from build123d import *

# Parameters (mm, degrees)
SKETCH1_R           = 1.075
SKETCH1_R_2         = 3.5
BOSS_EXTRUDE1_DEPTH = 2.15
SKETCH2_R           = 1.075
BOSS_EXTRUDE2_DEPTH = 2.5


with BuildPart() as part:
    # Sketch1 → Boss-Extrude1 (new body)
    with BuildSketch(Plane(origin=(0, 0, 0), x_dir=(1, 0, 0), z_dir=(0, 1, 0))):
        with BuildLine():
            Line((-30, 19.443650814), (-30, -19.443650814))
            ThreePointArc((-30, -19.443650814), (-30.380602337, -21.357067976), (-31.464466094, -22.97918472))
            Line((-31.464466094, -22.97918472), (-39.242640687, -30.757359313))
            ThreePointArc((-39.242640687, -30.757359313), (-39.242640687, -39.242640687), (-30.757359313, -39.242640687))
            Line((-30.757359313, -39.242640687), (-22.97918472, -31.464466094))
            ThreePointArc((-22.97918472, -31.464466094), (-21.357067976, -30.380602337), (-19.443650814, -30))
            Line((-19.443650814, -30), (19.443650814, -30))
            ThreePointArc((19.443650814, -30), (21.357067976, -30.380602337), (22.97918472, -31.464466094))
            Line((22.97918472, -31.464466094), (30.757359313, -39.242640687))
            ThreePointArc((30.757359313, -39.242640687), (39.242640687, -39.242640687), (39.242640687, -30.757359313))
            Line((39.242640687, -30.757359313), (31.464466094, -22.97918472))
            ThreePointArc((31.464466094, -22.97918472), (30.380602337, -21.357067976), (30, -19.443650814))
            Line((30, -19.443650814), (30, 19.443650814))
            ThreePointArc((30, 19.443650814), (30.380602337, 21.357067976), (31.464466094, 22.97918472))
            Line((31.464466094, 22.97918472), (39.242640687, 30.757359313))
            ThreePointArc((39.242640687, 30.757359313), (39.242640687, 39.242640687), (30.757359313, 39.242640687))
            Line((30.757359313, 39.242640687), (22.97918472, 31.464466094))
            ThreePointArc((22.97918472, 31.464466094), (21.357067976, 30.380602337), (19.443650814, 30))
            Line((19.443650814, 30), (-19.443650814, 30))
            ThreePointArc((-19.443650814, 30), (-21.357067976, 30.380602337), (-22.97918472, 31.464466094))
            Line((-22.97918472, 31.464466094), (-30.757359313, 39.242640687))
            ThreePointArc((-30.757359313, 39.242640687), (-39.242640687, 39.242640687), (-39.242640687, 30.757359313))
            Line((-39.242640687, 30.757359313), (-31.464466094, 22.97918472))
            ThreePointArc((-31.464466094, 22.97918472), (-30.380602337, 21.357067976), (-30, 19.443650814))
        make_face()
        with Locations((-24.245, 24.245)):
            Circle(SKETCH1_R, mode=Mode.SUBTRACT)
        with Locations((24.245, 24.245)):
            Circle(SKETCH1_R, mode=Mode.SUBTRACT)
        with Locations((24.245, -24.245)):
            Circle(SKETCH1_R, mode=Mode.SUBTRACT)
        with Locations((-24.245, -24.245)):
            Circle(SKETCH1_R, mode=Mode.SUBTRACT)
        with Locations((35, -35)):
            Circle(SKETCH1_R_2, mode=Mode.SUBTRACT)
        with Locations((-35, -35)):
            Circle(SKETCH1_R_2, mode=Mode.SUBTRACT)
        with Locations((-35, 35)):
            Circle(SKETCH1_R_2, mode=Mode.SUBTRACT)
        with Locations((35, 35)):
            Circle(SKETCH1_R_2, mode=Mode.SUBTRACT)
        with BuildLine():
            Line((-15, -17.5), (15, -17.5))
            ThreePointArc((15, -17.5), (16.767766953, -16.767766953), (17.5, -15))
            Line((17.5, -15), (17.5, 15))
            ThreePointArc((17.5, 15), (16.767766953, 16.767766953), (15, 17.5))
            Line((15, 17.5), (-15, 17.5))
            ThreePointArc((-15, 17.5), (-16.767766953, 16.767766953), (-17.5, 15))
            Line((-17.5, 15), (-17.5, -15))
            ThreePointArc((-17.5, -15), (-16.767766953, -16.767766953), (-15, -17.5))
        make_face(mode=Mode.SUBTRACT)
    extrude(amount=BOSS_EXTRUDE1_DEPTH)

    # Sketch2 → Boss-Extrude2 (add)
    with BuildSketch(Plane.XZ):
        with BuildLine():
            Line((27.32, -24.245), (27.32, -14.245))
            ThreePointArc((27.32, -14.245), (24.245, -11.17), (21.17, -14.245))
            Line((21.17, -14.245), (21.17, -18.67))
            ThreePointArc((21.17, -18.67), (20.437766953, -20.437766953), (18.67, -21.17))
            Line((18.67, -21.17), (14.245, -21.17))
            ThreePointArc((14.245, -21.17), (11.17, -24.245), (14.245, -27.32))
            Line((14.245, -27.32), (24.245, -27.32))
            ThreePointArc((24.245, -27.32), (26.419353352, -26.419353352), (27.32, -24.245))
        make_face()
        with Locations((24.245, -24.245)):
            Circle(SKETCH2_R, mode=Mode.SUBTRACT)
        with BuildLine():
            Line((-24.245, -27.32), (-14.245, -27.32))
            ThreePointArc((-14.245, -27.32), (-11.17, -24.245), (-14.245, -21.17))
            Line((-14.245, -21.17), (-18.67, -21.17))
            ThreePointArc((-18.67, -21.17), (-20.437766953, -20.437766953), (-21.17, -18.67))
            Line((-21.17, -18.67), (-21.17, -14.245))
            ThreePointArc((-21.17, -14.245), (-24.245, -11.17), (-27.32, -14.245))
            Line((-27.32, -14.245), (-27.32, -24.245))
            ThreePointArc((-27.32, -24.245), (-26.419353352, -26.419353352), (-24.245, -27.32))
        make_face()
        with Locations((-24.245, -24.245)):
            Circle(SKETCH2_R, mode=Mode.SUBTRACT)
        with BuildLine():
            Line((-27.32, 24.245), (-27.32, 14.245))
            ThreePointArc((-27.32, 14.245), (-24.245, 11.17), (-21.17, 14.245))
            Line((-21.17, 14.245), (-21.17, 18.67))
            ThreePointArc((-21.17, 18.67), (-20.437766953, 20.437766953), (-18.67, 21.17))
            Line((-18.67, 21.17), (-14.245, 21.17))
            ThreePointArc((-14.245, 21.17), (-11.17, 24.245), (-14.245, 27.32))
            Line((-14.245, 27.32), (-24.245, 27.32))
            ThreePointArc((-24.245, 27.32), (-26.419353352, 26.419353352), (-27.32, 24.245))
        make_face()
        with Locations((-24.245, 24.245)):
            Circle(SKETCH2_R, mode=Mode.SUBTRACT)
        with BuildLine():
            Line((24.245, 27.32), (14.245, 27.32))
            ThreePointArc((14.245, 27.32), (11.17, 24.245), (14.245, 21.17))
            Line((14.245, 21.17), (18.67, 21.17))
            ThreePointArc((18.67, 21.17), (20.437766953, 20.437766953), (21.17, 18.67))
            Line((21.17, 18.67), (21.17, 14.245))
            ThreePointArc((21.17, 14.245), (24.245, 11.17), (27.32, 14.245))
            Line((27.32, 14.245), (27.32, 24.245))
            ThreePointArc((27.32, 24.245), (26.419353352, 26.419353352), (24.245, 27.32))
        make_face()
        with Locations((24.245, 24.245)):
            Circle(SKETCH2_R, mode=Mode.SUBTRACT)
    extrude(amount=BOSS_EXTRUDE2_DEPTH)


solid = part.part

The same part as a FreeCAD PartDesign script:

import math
import FreeCAD as App
import Part
import Sketcher

doc = App.newDocument("Part")
body = doc.addObject("PartDesign::Body", "Body")

sketch1 = doc.addObject("Sketcher::SketchObject", "Sketch")
body.addObject(sketch1)
sketch1.AttachmentSupport = (doc.XZ_Plane, [""])
sketch1.MapMode = "FlatFace"
sketch1.addGeometry([
    Part.LineSegment(App.Vector(-30, -19.4, 0), App.Vector(-30, 19.4, 0)),
    Part.ArcOfCircle(Part.Circle(App.Vector(-35, 19.4, 0), App.Vector(0, 0, 1), 5), math.radians(0), math.radians(45)),
    Part.LineSegment(App.Vector(-31.5, 23, 0), App.Vector(-39.2, 30.8, 0)),
    Part.ArcOfCircle(Part.Circle(App.Vector(-35, 35, 0), App.Vector(0, 0, 1), 6), math.radians(45), math.radians(225)),
    Part.LineSegment(App.Vector(-30.8, 39.2, 0), App.Vector(-23, 31.5, 0)),
    Part.ArcOfCircle(Part.Circle(App.Vector(-19.4, 35, 0), App.Vector(0, 0, 1), 5), math.radians(-135), math.radians(-90)),
    Part.LineSegment(App.Vector(-19.4, 30, 0), App.Vector(19.4, 30, 0)),
    Part.ArcOfCircle(Part.Circle(App.Vector(19.4, 35, 0), App.Vector(0, 0, 1), 5), math.radians(-90), math.radians(-45)),
    Part.LineSegment(App.Vector(23, 31.5, 0), App.Vector(30.8, 39.2, 0)),
    Part.ArcOfCircle(Part.Circle(App.Vector(35, 35, 0), App.Vector(0, 0, 1), 6), math.radians(-45), math.radians(135)),
    Part.LineSegment(App.Vector(39.2, 30.8, 0), App.Vector(31.5, 23, 0)),
    Part.ArcOfCircle(Part.Circle(App.Vector(35, 19.4, 0), App.Vector(0, 0, 1), 5), math.radians(135), math.radians(180)),
    Part.LineSegment(App.Vector(30, 19.4, 0), App.Vector(30, -19.4, 0)),
    Part.ArcOfCircle(Part.Circle(App.Vector(35, -19.4, 0), App.Vector(0, 0, 1), 5), math.radians(180), math.radians(225)),
    Part.LineSegment(App.Vector(31.5, -23, 0), App.Vector(39.2, -30.8, 0)),
    Part.ArcOfCircle(Part.Circle(App.Vector(35, -35, 0), App.Vector(0, 0, 1), 6), math.radians(-135), math.radians(45)),
    Part.LineSegment(App.Vector(30.8, -39.2, 0), App.Vector(23, -31.5, 0)),
    Part.ArcOfCircle(Part.Circle(App.Vector(19.4, -35, 0), App.Vector(0, 0, 1), 5), math.radians(45), math.radians(90)),
    Part.LineSegment(App.Vector(19.4, -30, 0), App.Vector(-19.4, -30, 0)),
    Part.ArcOfCircle(Part.Circle(App.Vector(-19.4, -35, 0), App.Vector(0, 0, 1), 5), math.radians(90), math.radians(135)),
    Part.LineSegment(App.Vector(-23, -31.5, 0), App.Vector(-30.8, -39.2, 0)),
    Part.ArcOfCircle(Part.Circle(App.Vector(-35, -35, 0), App.Vector(0, 0, 1), 6), math.radians(135), math.radians(315)),
    Part.LineSegment(App.Vector(-39.2, -30.8, 0), App.Vector(-31.5, -23, 0)),
    Part.ArcOfCircle(Part.Circle(App.Vector(-35, -19.4, 0), App.Vector(0, 0, 1), 5), math.radians(-45), math.radians(0)),
    Part.Circle(App.Vector(-35, 35, 0), App.Vector(0, 0, 1), 3.5),
    Part.Circle(App.Vector(-24.2, 24.2, 0), App.Vector(0, 0, 1), 1.1),
    Part.Circle(App.Vector(35, 35, 0), App.Vector(0, 0, 1), 3.5),
    Part.Circle(App.Vector(24.2, 24.2, 0), App.Vector(0, 0, 1), 1.1),
    Part.Circle(App.Vector(-24.2, -24.2, 0), App.Vector(0, 0, 1), 1.1),
    Part.Circle(App.Vector(-35, -35, 0), App.Vector(0, 0, 1), 3.5),
    Part.LineSegment(App.Vector(15, 17.5, 0), App.Vector(-15, 17.5, 0)),
    Part.ArcOfCircle(Part.Circle(App.Vector(-15, 15, 0), App.Vector(0, 0, 1), 2.5), math.radians(90), math.radians(180)),
    Part.LineSegment(App.Vector(-17.5, 15, 0), App.Vector(-17.5, -15, 0)),
    Part.ArcOfCircle(Part.Circle(App.Vector(-15, -15, 0), App.Vector(0, 0, 1), 2.5), math.radians(180), math.radians(270)),
    Part.LineSegment(App.Vector(-15, -17.5, 0), App.Vector(15, -17.5, 0)),
    Part.ArcOfCircle(Part.Circle(App.Vector(15, -15, 0), App.Vector(0, 0, 1), 2.5), math.radians(-90), math.radians(0)),
    Part.LineSegment(App.Vector(17.5, -15, 0), App.Vector(17.5, 15, 0)),
    Part.ArcOfCircle(Part.Circle(App.Vector(15, 15, 0), App.Vector(0, 0, 1), 2.5), math.radians(0), math.radians(90)),
    Part.Circle(App.Vector(24.2, -24.2, 0), App.Vector(0, 0, 1), 1.1),
    Part.Circle(App.Vector(35, -35, 0), App.Vector(0, 0, 1), 3.5),
], False)
sketch1.addConstraint([
    Sketcher.Constraint("Tangent", 0, 2, 1, 1),
    Sketcher.Constraint("Tangent", 1, 2, 2, 1),
    Sketcher.Constraint("Tangent", 2, 2, 3, 2),
    Sketcher.Constraint("Tangent", 3, 1, 4, 1),
    Sketcher.Constraint("Tangent", 4, 2, 5, 1),
    Sketcher.Constraint("Tangent", 5, 2, 6, 1),
    Sketcher.Constraint("Tangent", 6, 2, 7, 1),
    Sketcher.Constraint("Tangent", 7, 2, 8, 1),
    Sketcher.Constraint("Tangent", 8, 2, 9, 2),
    Sketcher.Constraint("Tangent", 9, 1, 10, 1),
    Sketcher.Constraint("Tangent", 10, 2, 11, 1),
    Sketcher.Constraint("Tangent", 11, 2, 12, 1),
    Sketcher.Constraint("Tangent", 12, 2, 13, 1),
    Sketcher.Constraint("Tangent", 13, 2, 14, 1),
    Sketcher.Constraint("Tangent", 14, 2, 15, 2),
    Sketcher.Constraint("Tangent", 15, 1, 16, 1),
    Sketcher.Constraint("Tangent", 16, 2, 17, 1),
    Sketcher.Constraint("Tangent", 17, 2, 18, 1),
    Sketcher.Constraint("Tangent", 18, 2, 19, 1),
    Sketcher.Constraint("Tangent", 19, 2, 20, 1),
    Sketcher.Constraint("Tangent", 20, 2, 21, 2),
    Sketcher.Constraint("Tangent", 21, 1, 22, 1),
    Sketcher.Constraint("Tangent", 22, 2, 23, 1),
    Sketcher.Constraint("Tangent", 23, 2, 0, 1),
    Sketcher.Constraint("Tangent", 30, 2, 31, 1),
    Sketcher.Constraint("Tangent", 31, 2, 32, 1),
    Sketcher.Constraint("Tangent", 32, 2, 33, 1),
    Sketcher.Constraint("Tangent", 33, 2, 34, 1),
    Sketcher.Constraint("Tangent", 34, 2, 35, 1),
    Sketcher.Constraint("Tangent", 35, 2, 36, 1),
    Sketcher.Constraint("Tangent", 36, 2, 37, 1),
    Sketcher.Constraint("Tangent", 37, 2, 30, 1),
    Sketcher.Constraint("Vertical", 0),
    Sketcher.Constraint("Horizontal", 6),
    Sketcher.Constraint("Vertical", 12),
    Sketcher.Constraint("Horizontal", 18),
    Sketcher.Constraint("Horizontal", 30),
    Sketcher.Constraint("Vertical", 32),
    Sketcher.Constraint("Horizontal", 34),
    Sketcher.Constraint("Vertical", 36),
    Sketcher.Constraint("Coincident", 24, 3, 3, 3),
    Sketcher.Constraint("Coincident", 26, 3, 9, 3),
    Sketcher.Constraint("Coincident", 29, 3, 21, 3),
    Sketcher.Constraint("Coincident", 39, 3, 15, 3),
    Sketcher.Constraint("Equal", 1, 5),
    Sketcher.Constraint("Equal", 5, 7),
    Sketcher.Constraint("Equal", 3, 9),
    Sketcher.Constraint("Equal", 7, 11),
    Sketcher.Constraint("Equal", 11, 13),
    Sketcher.Constraint("Equal", 9, 15),
    Sketcher.Constraint("Equal", 13, 17),
    Sketcher.Constraint("Equal", 17, 19),
    Sketcher.Constraint("Equal", 15, 21),
    Sketcher.Constraint("Equal", 19, 23),
    Sketcher.Constraint("Equal", 24, 26),
    Sketcher.Constraint("Equal", 25, 27),
    Sketcher.Constraint("Equal", 27, 28),
    Sketcher.Constraint("Equal", 26, 29),
    Sketcher.Constraint("Equal", 31, 33),
    Sketcher.Constraint("Equal", 33, 35),
    Sketcher.Constraint("Equal", 35, 37),
    Sketcher.Constraint("Equal", 28, 38),
    Sketcher.Constraint("Equal", 29, 39),
    Sketcher.Constraint("Symmetric", 1, 3, 13, 3, -1, 1),
    Sketcher.Constraint("Symmetric", 3, 3, 15, 3, -1, 1),
    Sketcher.Constraint("Symmetric", 5, 3, 17, 3, -1, 1),
    Sketcher.Constraint("Symmetric", 9, 3, 21, 3, -1, 1),
    Sketcher.Constraint("Symmetric", 27, 3, 28, 3, -1, 1),
    Sketcher.Constraint("Symmetric", 31, 3, 35, 3, -1, 1),
    Sketcher.Constraint("Symmetric", 25, 3, 38, 3, -1, 1),
    Sketcher.Constraint("Symmetric", 3, 3, 9, 3, -2),
    Sketcher.Constraint("Symmetric", 25, 3, 27, 3, -2),
    Sketcher.Constraint("Parallel", 2, 4),
    Sketcher.Constraint("Perpendicular", 4, 8),
    Sketcher.Constraint("Parallel", 8, 10),
    Sketcher.Constraint("Perpendicular", 16, 20),
    Sketcher.Constraint("Parallel", 20, 22),
    Sketcher.Constraint("Horizontal", 3, 3, 5, 3),
    Sketcher.Constraint("Horizontal", 1, 3, 11, 3),
    Sketcher.Constraint("Vertical", 1, 3, 3, 3),
    Sketcher.Constraint("Equal", 18, 0),
    Sketcher.Constraint("Equal", 34, 32),
    Sketcher.Constraint("Diameter", 24, 7.0),
    Sketcher.Constraint("Radius", 1, 5.0),
    Sketcher.Constraint("Radius", 3, 6.0),
    Sketcher.Constraint("Radius", 31, 2.5),
    Sketcher.Constraint("Diameter", 25, 2.15),
    Sketcher.Constraint("DistanceX", 30, 2, 30, 1, 30.0),
    Sketcher.Constraint("DistanceX", 1, 3, -1, 1, 35.0),
    Sketcher.Constraint("DistanceX", 25, 3, -1, 1, 24.245),
    Sketcher.Constraint("DistanceY", -1, 1, 25, 3, 24.245),
])
pad1 = doc.addObject("PartDesign::Pad", "Pad")
body.addObject(pad1)
pad1.Profile = sketch1
pad1.Length = 2.15
pad1.Reversed = True

sketch2 = doc.addObject("Sketcher::SketchObject", "Sketch001")
body.addObject(sketch2)
sketch2.AttachmentSupport = (doc.XZ_Plane, [""])
sketch2.MapMode = "FlatFace"
sketch2.addGeometry([
    Part.LineSegment(App.Vector(27.3, -24.2, 0), App.Vector(27.3, -14.2, 0)),
    Part.ArcOfCircle(Part.Circle(App.Vector(24.2, -14.2, 0), App.Vector(0, 0, 1), 3.1), math.radians(0), math.radians(180)),
    Part.LineSegment(App.Vector(21.2, -14.2, 0), App.Vector(21.2, -18.7, 0)),
    Part.ArcOfCircle(Part.Circle(App.Vector(18.7, -18.7, 0), App.Vector(0, 0, 1), 2.5), math.radians(-90), math.radians(0)),
    Part.LineSegment(App.Vector(18.7, -21.2, 0), App.Vector(14.2, -21.2, 0)),
    Part.ArcOfCircle(Part.Circle(App.Vector(14.2, -24.2, 0), App.Vector(0, 0, 1), 3.1), math.radians(90), math.radians(270)),
    Part.LineSegment(App.Vector(14.2, -27.3, 0), App.Vector(24.2, -27.3, 0)),
    Part.ArcOfCircle(Part.Circle(App.Vector(24.2, -24.2, 0), App.Vector(0, 0, 1), 3.1), math.radians(-90), math.radians(0)),
    Part.Circle(App.Vector(24.2, -24.2, 0), App.Vector(0, 0, 1), 1.1),
    Part.LineSegment(App.Vector(-24.2, -27.3, 0), App.Vector(-14.2, -27.3, 0)),
    Part.ArcOfCircle(Part.Circle(App.Vector(-14.2, -24.2, 0), App.Vector(0, 0, 1), 3.1), math.radians(-90), math.radians(90)),
    Part.LineSegment(App.Vector(-14.2, -21.2, 0), App.Vector(-18.7, -21.2, 0)),
    Part.ArcOfCircle(Part.Circle(App.Vector(-18.7, -18.7, 0), App.Vector(0, 0, 1), 2.5), math.radians(180), math.radians(270)),
    Part.LineSegment(App.Vector(-21.2, -18.7, 0), App.Vector(-21.2, -14.2, 0)),
    Part.ArcOfCircle(Part.Circle(App.Vector(-24.2, -14.2, 0), App.Vector(0, 0, 1), 3.1), math.radians(0), math.radians(180)),
    Part.LineSegment(App.Vector(-27.3, -14.2, 0), App.Vector(-27.3, -24.2, 0)),
    Part.ArcOfCircle(Part.Circle(App.Vector(-24.2, -24.2, 0), App.Vector(0, 0, 1), 3.1), math.radians(-180), math.radians(-90)),
    Part.Circle(App.Vector(-24.2, -24.2, 0), App.Vector(0, 0, 1), 1.1),
    Part.LineSegment(App.Vector(-27.3, 24.2, 0), App.Vector(-27.3, 14.2, 0)),
    Part.ArcOfCircle(Part.Circle(App.Vector(-24.2, 14.2, 0), App.Vector(0, 0, 1), 3.1), math.radians(180), math.radians(360)),
    Part.LineSegment(App.Vector(-21.2, 14.2, 0), App.Vector(-21.2, 18.7, 0)),
    Part.ArcOfCircle(Part.Circle(App.Vector(-18.7, 18.7, 0), App.Vector(0, 0, 1), 2.5), math.radians(90), math.radians(180)),
    Part.LineSegment(App.Vector(-18.7, 21.2, 0), App.Vector(-14.2, 21.2, 0)),
    Part.ArcOfCircle(Part.Circle(App.Vector(-14.2, 24.2, 0), App.Vector(0, 0, 1), 3.1), math.radians(-90), math.radians(90)),
    Part.LineSegment(App.Vector(-14.2, 27.3, 0), App.Vector(-24.2, 27.3, 0)),
    Part.ArcOfCircle(Part.Circle(App.Vector(-24.2, 24.2, 0), App.Vector(0, 0, 1), 3.1), math.radians(90), math.radians(180)),
    Part.Circle(App.Vector(-24.2, 24.2, 0), App.Vector(0, 0, 1), 1.1),
    Part.LineSegment(App.Vector(24.2, 27.3, 0), App.Vector(14.2, 27.3, 0)),
    Part.ArcOfCircle(Part.Circle(App.Vector(14.2, 24.2, 0), App.Vector(0, 0, 1), 3.1), math.radians(90), math.radians(270)),
    Part.LineSegment(App.Vector(14.2, 21.2, 0), App.Vector(18.7, 21.2, 0)),
    Part.ArcOfCircle(Part.Circle(App.Vector(18.7, 18.7, 0), App.Vector(0, 0, 1), 2.5), math.radians(0), math.radians(90)),
    Part.LineSegment(App.Vector(21.2, 18.7, 0), App.Vector(21.2, 14.2, 0)),
    Part.ArcOfCircle(Part.Circle(App.Vector(24.2, 14.2, 0), App.Vector(0, 0, 1), 3.1), math.radians(180), math.radians(360)),
    Part.LineSegment(App.Vector(27.3, 14.2, 0), App.Vector(27.3, 24.2, 0)),
    Part.ArcOfCircle(Part.Circle(App.Vector(24.2, 24.2, 0), App.Vector(0, 0, 1), 3.1), math.radians(0), math.radians(90)),
    Part.Circle(App.Vector(24.2, 24.2, 0), App.Vector(0, 0, 1), 1.1),
], False)
sketch2.addConstraint([
    Sketcher.Constraint("Tangent", 0, 2, 1, 1),
    Sketcher.Constraint("Tangent", 1, 2, 2, 1),
    Sketcher.Constraint("Tangent", 2, 2, 3, 2),
    Sketcher.Constraint("Tangent", 3, 1, 4, 1),
    Sketcher.Constraint("Tangent", 4, 2, 5, 1),
    Sketcher.Constraint("Tangent", 5, 2, 6, 1),
    Sketcher.Constraint("Tangent", 6, 2, 7, 1),
    Sketcher.Constraint("Tangent", 7, 2, 0, 1),
    Sketcher.Constraint("Tangent", 9, 2, 10, 1),
    Sketcher.Constraint("Tangent", 10, 2, 11, 1),
    Sketcher.Constraint("Tangent", 11, 2, 12, 2),
    Sketcher.Constraint("Tangent", 12, 1, 13, 1),
    Sketcher.Constraint("Tangent", 13, 2, 14, 1),
    Sketcher.Constraint("Tangent", 14, 2, 15, 1),
    Sketcher.Constraint("Tangent", 15, 2, 16, 1),
    Sketcher.Constraint("Tangent", 16, 2, 9, 1),
    Sketcher.Constraint("Tangent", 18, 2, 19, 1),
    Sketcher.Constraint("Tangent", 19, 2, 20, 1),
    Sketcher.Constraint("Tangent", 20, 2, 21, 2),
    Sketcher.Constraint("Tangent", 21, 1, 22, 1),
    Sketcher.Constraint("Tangent", 22, 2, 23, 1),
    Sketcher.Constraint("Tangent", 23, 2, 24, 1),
    Sketcher.Constraint("Tangent", 24, 2, 25, 1),
    Sketcher.Constraint("Tangent", 25, 2, 18, 1),
    Sketcher.Constraint("Tangent", 27, 2, 28, 1),
    Sketcher.Constraint("Tangent", 28, 2, 29, 1),
    Sketcher.Constraint("Tangent", 29, 2, 30, 2),
    Sketcher.Constraint("Tangent", 30, 1, 31, 1),
    Sketcher.Constraint("Tangent", 31, 2, 32, 1),
    Sketcher.Constraint("Tangent", 32, 2, 33, 1),
    Sketcher.Constraint("Tangent", 33, 2, 34, 1),
    Sketcher.Constraint("Tangent", 34, 2, 27, 1),
    Sketcher.Constraint("Vertical", 0),
    Sketcher.Constraint("Vertical", 2),
    Sketcher.Constraint("Horizontal", 4),
    Sketcher.Constraint("Horizontal", 6),
    Sketcher.Constraint("Horizontal", 9),
    Sketcher.Constraint("Horizontal", 11),
    Sketcher.Constraint("Vertical", 13),
    Sketcher.Constraint("Vertical", 15),
    Sketcher.Constraint("Vertical", 18),
    Sketcher.Constraint("Vertical", 20),
    Sketcher.Constraint("Horizontal", 22),
    Sketcher.Constraint("Horizontal", 24),
    Sketcher.Constraint("Horizontal", 27),
    Sketcher.Constraint("Horizontal", 29),
    Sketcher.Constraint("Vertical", 31),
    Sketcher.Constraint("Vertical", 33),
    Sketcher.Constraint("Coincident", 8, 3, 7, 3),
    Sketcher.Constraint("Coincident", 17, 3, 16, 3),
    Sketcher.Constraint("Coincident", 26, 3, 25, 3),
    Sketcher.Constraint("Coincident", 35, 3, 34, 3),
    Sketcher.Constraint("Equal", 1, 5),
    Sketcher.Constraint("Equal", 5, 7),
    Sketcher.Constraint("Equal", 7, 10),
    Sketcher.Constraint("Equal", 3, 12),
    Sketcher.Constraint("Equal", 10, 14),
    Sketcher.Constraint("Equal", 14, 16),
    Sketcher.Constraint("Equal", 8, 17),
    Sketcher.Constraint("Equal", 16, 19),
    Sketcher.Constraint("Equal", 12, 21),
    Sketcher.Constraint("Equal", 19, 23),
    Sketcher.Constraint("Equal", 23, 25),
    Sketcher.Constraint("Equal", 17, 26),
    Sketcher.Constraint("Equal", 25, 28),
    Sketcher.Constraint("Equal", 21, 30),
    Sketcher.Constraint("Equal", 28, 32),
    Sketcher.Constraint("Equal", 32, 34),
    Sketcher.Constraint("Equal", 26, 35),
    Sketcher.Constraint("Symmetric", 1, 3, 19, 3, -1, 1),
    Sketcher.Constraint("Symmetric", 5, 3, 23, 3, -1, 1),
    Sketcher.Constraint("Symmetric", 10, 3, 28, 3, -1, 1),
    Sketcher.Constraint("Symmetric", 14, 3, 32, 3, -1, 1),
    Sketcher.Constraint("Symmetric", 5, 3, 10, 3, -2),
    Sketcher.Constraint("Symmetric", 1, 3, 14, 3, -2),
    Sketcher.Constraint("Equal", 27, 0),
    Sketcher.Constraint("Radius", 3, 2.5),
    Sketcher.Constraint("Diameter", 8, 2.15),
    Sketcher.Constraint("DistanceX", 6, 1, 6, 2, 10.0),
    Sketcher.Constraint("Radius", 1, 3.075),
    Sketcher.Constraint("DistanceX", -1, 1, 3, 3, 18.67),
    Sketcher.Constraint("DistanceY", 3, 3, -1, 1, 18.67),
])
pad2 = doc.addObject("PartDesign::Pad", "Pad001")
body.addObject(pad2)
pad2.Profile = sketch2
pad2.Length = 2.5

doc.recompute()
